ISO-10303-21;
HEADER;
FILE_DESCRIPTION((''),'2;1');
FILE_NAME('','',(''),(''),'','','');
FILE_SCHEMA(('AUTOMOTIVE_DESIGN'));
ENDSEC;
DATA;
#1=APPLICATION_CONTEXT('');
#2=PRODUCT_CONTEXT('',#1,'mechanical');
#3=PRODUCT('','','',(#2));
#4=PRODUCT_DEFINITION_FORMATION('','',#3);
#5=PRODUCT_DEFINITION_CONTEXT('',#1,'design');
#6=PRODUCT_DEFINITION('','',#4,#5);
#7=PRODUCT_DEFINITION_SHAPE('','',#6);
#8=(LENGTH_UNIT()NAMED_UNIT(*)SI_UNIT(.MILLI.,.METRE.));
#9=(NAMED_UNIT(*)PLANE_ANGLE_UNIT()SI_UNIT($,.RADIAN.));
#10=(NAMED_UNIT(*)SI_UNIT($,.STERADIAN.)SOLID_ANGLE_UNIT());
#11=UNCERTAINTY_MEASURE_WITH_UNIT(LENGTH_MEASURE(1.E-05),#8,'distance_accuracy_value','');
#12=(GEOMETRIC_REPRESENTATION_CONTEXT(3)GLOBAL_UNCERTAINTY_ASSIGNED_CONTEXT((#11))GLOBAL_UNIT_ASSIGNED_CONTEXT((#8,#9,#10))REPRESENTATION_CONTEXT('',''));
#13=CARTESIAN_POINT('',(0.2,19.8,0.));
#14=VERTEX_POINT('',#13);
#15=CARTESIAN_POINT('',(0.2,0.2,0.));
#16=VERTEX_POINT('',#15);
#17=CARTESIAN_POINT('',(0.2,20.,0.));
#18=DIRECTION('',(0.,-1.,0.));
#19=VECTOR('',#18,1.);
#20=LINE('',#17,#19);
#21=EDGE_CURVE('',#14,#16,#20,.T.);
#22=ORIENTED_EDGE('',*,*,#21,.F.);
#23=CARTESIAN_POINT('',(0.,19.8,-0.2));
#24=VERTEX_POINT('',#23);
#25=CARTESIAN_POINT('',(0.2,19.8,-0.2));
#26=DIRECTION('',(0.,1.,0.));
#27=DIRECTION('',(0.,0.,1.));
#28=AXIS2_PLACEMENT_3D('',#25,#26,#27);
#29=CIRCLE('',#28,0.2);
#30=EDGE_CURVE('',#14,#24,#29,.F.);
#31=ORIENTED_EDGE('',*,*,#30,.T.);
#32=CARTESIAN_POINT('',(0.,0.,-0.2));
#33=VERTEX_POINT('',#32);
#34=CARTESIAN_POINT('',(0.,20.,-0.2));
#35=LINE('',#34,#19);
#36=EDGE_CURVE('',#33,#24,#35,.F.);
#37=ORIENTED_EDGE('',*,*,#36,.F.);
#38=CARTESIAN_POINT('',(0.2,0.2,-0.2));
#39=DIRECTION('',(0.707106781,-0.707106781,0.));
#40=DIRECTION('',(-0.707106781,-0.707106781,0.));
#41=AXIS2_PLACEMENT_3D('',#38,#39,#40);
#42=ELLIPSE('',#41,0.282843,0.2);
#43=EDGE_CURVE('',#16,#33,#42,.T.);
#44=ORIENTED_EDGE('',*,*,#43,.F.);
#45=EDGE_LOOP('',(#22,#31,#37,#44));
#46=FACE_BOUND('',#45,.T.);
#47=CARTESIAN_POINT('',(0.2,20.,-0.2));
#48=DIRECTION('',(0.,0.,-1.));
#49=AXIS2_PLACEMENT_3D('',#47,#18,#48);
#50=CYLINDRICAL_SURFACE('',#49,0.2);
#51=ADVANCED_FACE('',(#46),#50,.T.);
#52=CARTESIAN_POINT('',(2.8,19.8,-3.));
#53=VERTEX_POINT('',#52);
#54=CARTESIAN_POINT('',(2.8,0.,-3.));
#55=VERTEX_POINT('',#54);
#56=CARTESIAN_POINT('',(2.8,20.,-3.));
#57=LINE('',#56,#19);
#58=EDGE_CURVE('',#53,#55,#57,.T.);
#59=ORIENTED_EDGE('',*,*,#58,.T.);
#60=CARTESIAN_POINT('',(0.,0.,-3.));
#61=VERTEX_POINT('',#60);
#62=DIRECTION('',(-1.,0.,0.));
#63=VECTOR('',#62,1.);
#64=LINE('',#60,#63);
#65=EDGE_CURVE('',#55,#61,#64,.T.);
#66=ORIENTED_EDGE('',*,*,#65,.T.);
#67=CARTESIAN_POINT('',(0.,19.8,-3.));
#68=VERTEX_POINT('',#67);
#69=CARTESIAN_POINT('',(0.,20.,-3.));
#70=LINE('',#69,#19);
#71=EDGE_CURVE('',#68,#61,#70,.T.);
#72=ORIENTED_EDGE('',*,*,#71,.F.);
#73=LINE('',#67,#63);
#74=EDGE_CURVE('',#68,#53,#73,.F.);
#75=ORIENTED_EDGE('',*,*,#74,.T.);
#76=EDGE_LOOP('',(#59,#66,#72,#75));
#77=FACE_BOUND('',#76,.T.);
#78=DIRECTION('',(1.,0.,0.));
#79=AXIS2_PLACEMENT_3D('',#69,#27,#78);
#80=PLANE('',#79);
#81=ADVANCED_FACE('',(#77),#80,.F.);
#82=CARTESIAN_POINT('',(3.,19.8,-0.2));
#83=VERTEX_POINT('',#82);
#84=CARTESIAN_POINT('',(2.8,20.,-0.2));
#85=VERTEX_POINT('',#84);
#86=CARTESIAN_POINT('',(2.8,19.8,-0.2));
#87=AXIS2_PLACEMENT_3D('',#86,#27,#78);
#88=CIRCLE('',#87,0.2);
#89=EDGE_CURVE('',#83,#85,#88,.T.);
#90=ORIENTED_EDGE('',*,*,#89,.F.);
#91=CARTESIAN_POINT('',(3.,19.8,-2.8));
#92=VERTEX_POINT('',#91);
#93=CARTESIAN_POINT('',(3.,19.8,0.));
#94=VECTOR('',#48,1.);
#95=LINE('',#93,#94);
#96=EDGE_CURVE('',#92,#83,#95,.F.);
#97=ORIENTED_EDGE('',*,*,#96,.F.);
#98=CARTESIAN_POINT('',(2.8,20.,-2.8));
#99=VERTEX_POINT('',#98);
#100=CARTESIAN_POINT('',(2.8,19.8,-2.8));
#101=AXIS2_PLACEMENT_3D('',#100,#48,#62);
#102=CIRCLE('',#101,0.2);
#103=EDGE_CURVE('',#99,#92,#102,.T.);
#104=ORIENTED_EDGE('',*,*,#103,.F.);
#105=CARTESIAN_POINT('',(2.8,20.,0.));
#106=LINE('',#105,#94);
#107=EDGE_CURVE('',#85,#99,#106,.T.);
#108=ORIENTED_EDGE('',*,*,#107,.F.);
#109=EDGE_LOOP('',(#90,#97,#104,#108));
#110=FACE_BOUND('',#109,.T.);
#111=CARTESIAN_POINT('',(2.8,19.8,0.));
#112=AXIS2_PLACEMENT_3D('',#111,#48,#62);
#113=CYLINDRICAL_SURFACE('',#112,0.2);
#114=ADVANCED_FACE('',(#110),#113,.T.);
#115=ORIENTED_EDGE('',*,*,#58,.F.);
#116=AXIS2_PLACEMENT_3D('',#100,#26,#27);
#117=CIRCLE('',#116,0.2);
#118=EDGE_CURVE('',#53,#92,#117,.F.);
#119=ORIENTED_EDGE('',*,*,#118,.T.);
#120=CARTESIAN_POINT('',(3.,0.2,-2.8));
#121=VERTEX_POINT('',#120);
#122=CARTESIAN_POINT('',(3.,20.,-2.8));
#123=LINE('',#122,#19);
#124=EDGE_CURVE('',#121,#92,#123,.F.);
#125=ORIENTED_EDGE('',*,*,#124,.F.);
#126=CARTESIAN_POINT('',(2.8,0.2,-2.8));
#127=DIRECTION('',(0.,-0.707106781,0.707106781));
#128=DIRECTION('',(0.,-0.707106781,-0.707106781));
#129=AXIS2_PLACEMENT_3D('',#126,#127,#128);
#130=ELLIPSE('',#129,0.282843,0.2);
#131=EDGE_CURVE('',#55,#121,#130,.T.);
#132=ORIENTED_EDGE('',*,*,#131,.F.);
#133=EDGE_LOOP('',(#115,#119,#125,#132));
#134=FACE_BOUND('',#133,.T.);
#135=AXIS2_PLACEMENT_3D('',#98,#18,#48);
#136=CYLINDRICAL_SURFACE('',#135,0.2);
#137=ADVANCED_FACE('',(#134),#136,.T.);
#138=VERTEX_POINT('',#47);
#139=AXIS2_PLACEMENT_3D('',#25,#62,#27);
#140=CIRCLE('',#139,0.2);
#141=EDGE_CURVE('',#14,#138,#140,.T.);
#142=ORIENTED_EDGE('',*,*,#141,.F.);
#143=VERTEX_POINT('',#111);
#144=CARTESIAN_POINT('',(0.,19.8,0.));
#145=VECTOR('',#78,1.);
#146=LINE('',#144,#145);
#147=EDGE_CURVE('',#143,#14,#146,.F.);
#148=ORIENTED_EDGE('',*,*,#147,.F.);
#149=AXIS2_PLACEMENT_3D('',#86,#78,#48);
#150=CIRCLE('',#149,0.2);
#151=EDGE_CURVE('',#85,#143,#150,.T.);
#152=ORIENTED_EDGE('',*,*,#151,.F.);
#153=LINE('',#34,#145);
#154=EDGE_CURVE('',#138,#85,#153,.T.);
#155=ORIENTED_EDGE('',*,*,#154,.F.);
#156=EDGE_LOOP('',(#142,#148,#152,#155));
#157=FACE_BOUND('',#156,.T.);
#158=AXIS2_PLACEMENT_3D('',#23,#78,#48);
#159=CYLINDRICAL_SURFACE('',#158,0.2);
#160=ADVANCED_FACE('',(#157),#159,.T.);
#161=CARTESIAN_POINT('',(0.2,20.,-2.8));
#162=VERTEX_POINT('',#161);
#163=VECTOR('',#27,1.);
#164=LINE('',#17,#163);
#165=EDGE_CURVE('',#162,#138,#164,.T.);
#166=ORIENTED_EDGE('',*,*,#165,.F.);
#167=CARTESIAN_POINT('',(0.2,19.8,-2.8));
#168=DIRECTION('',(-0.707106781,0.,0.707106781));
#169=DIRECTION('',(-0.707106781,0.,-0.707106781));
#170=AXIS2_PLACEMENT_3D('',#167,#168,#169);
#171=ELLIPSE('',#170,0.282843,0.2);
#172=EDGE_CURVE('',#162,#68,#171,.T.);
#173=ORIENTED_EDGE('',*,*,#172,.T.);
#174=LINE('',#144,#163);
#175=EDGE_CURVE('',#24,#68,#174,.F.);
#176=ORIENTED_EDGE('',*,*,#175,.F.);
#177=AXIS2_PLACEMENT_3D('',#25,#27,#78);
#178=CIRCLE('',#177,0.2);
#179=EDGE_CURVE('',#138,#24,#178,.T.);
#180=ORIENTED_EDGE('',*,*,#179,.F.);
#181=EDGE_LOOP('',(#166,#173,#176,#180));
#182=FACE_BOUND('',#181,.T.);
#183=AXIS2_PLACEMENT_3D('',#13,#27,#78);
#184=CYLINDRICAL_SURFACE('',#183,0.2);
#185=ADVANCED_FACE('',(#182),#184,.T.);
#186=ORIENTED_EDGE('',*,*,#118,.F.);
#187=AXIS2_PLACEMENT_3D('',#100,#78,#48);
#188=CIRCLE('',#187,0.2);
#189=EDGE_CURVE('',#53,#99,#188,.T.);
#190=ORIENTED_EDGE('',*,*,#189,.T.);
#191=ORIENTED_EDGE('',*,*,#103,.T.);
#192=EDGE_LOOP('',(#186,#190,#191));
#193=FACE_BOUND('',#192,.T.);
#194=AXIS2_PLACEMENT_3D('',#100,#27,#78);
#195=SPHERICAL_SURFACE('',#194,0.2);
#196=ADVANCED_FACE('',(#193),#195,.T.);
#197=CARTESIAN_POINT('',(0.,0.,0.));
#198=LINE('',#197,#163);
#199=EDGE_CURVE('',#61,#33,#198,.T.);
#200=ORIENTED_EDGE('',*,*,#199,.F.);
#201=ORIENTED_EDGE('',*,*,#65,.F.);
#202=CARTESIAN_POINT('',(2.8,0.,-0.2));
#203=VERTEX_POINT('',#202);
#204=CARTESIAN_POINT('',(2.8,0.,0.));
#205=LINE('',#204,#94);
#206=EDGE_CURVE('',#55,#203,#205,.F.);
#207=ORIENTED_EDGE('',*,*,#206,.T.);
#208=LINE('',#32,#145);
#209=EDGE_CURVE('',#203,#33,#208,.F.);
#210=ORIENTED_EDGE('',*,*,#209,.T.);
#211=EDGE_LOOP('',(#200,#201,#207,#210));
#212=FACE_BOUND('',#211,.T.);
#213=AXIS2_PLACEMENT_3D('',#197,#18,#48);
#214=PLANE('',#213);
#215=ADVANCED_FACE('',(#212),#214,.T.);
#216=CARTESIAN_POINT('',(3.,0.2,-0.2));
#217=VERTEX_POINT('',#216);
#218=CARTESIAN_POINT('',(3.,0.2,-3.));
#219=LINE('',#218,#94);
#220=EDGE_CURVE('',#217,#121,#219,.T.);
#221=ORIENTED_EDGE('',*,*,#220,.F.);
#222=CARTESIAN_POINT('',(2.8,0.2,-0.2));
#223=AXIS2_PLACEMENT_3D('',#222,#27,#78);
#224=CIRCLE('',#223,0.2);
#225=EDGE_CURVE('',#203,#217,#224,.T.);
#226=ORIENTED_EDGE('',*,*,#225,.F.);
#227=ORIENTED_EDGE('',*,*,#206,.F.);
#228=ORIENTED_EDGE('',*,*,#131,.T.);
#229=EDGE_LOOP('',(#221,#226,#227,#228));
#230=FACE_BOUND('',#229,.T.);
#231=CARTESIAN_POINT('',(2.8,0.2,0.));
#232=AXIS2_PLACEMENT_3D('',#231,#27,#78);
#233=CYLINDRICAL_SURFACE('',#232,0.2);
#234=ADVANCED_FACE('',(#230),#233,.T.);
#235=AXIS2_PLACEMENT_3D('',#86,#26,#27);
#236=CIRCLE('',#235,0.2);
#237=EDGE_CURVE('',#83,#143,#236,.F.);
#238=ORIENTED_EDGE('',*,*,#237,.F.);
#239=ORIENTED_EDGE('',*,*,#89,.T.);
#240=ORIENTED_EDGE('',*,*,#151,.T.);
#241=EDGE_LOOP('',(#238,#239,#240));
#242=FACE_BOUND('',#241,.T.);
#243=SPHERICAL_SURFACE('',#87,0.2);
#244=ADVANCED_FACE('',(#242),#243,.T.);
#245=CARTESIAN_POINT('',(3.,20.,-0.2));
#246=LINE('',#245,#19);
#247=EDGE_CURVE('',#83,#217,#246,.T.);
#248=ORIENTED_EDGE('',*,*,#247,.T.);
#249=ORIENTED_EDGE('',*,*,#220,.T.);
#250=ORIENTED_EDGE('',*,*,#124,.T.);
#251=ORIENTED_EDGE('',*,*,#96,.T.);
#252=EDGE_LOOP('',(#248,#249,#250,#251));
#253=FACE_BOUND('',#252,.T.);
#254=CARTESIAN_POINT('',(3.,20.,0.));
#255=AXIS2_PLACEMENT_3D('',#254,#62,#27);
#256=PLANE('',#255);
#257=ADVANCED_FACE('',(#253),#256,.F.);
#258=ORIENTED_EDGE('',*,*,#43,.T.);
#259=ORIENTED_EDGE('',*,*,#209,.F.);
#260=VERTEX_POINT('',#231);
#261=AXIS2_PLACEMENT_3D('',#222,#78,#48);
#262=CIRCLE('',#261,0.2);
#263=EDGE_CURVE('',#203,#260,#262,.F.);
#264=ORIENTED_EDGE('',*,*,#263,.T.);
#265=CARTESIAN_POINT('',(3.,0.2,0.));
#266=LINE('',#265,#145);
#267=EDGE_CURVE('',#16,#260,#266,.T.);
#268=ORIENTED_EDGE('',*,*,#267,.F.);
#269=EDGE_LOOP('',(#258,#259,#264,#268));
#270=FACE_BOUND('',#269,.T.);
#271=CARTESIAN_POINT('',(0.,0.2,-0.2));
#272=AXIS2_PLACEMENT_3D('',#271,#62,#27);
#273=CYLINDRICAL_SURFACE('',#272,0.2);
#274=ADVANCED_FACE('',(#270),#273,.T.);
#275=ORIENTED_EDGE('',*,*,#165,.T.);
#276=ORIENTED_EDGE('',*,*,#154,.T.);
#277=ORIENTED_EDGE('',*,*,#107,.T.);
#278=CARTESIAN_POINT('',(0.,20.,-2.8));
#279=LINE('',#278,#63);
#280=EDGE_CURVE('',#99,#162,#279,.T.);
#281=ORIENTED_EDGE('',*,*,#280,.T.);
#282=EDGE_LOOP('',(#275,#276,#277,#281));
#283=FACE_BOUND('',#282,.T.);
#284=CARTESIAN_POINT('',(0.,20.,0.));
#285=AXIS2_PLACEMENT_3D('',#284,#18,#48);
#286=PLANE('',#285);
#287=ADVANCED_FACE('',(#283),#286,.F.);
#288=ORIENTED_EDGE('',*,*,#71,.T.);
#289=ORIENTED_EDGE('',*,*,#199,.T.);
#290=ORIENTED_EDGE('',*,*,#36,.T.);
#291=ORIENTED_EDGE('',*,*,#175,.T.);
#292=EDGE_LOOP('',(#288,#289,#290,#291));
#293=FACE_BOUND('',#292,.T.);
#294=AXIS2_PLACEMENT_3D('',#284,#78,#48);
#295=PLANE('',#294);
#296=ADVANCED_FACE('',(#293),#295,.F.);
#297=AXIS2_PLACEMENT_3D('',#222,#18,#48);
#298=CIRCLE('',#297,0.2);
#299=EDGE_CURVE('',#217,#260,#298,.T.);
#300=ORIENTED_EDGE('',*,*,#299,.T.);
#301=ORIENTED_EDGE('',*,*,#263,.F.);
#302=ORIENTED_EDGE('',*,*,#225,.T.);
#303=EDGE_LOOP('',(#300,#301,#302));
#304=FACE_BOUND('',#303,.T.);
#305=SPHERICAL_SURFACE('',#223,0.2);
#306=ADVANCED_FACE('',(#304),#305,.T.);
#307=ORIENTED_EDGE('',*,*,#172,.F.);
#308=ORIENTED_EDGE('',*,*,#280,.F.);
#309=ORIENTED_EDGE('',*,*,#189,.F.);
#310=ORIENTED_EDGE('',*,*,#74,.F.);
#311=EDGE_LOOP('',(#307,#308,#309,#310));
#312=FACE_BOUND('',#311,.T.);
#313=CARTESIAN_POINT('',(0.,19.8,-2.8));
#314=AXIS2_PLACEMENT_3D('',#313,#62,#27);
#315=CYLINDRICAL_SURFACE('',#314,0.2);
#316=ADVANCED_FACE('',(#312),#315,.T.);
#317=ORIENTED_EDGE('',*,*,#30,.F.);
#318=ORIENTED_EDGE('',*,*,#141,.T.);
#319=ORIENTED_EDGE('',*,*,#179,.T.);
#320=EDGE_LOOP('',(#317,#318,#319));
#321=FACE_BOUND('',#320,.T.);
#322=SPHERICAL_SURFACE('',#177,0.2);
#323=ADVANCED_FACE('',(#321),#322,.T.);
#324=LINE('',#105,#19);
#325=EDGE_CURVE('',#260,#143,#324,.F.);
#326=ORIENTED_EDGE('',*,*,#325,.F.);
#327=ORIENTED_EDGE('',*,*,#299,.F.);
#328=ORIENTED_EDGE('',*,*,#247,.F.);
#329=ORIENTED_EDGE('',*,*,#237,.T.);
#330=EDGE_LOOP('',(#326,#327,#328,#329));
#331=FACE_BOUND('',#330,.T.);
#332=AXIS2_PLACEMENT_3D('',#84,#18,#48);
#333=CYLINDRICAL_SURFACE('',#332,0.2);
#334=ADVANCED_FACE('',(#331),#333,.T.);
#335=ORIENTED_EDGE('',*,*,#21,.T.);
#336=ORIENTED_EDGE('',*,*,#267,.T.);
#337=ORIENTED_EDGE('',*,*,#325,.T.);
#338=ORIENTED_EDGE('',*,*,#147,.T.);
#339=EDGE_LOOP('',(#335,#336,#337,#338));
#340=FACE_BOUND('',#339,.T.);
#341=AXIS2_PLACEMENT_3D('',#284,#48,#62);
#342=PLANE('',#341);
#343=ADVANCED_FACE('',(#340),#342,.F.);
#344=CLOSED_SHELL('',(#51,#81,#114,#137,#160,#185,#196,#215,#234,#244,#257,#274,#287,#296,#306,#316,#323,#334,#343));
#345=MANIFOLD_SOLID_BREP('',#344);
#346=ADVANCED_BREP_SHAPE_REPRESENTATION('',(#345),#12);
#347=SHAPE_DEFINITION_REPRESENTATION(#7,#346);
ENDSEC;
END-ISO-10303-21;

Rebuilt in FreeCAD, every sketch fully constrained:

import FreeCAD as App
import Part
import Sketcher

V = App.Vector


def edges_at(feature, points):
    """Names of the edges that pass closest to the given points."""
    edges = feature.Shape.Edges
    near = lambda p: min(range(len(edges)), key=lambda i: edges[i].distToShape(Part.Vertex(*p))[0])
    return sorted({f"Edge{near(p) + 1}" for p in points})


def add_polygon(sketch, points):
    """Adds a closed chain of lines whose ends are joined by coincident constraints."""
    first, n = sketch.GeometryCount, len(points)
    for a, b in zip(points, points[1:] + points[:1]):
        sketch.addGeometry(Part.LineSegment(App.Vector(*a, 0), App.Vector(*b, 0)), False)
    for i in range(n):
        sketch.addConstraint(Sketcher.Constraint("Coincident", first + i, 2, first + (i + 1) % n, 1))

doc = App.newDocument("Part")
params = doc.addObject("Spreadsheet::Sheet", "Params")
for row, (alias, value) in enumerate([
    ("sketch1_width", "3 mm"),
    ("pad1_length", "20 mm"),
    ("fillet_radius", "0.2 mm"),
], start=1):
    params.set(f"A{row}", alias)
    params.set(f"B{row}", "=" + value)
    params.setAlias(f"B{row}", alias)

body = doc.addObject("PartDesign::Body", "Body")

# Sketch on XZ plane
sketch1 = body.newObject("Sketcher::SketchObject", "Sketch")
sketch1.AttachmentSupport = (doc.getObject("XZ_Plane"), [""])
sketch1.MapMode = "FlatFace"
add_polygon(sketch1, [(0, -3), (0, 0), (3, 0), (3, -3)])  # lines 0-3
sketch1.addConstraint(Sketcher.Constraint("Vertical", 0))
sketch1.addConstraint(Sketcher.Constraint("Horizontal", 1))
sketch1.addConstraint(Sketcher.Constraint("Vertical", 2))
sketch1.addConstraint(Sketcher.Constraint("Horizontal", 3))
sketch1.addConstraint(Sketcher.Constraint("Coincident", 0, 2, -1, 1))
sketch1.addConstraint(Sketcher.Constraint("Equal", 3, 0))
sketch1.addConstraint(Sketcher.Constraint("DistanceX", 1, 1, 1, 2, 3.0))
sketch1.setExpression("Constraints[10]", "Params.sketch1_width")
pad1 = body.newObject("PartDesign::Pad", "Pad")
pad1.Profile = sketch1
pad1.setExpression("Length", "Params.pad1_length")
pad1.Reversed = True
doc.recompute()

fillet = body.newObject("PartDesign::Fillet", "Fillet")
fillet.Base = (pad1, edges_at(pad1, [
    (3, 20, -1.5),
    (1.5, 20, -3),
    (0, 20, -1.5),
    (3, 0, -1.5),
    (1.5, 0, 0),
    (1.5, 20, 0),
    (3, 10, -3),
    (3, 10, 0),
    (0, 10, 0),
]))
fillet.setExpression("Radius", "Params.fillet_radius")

doc.recompute()
